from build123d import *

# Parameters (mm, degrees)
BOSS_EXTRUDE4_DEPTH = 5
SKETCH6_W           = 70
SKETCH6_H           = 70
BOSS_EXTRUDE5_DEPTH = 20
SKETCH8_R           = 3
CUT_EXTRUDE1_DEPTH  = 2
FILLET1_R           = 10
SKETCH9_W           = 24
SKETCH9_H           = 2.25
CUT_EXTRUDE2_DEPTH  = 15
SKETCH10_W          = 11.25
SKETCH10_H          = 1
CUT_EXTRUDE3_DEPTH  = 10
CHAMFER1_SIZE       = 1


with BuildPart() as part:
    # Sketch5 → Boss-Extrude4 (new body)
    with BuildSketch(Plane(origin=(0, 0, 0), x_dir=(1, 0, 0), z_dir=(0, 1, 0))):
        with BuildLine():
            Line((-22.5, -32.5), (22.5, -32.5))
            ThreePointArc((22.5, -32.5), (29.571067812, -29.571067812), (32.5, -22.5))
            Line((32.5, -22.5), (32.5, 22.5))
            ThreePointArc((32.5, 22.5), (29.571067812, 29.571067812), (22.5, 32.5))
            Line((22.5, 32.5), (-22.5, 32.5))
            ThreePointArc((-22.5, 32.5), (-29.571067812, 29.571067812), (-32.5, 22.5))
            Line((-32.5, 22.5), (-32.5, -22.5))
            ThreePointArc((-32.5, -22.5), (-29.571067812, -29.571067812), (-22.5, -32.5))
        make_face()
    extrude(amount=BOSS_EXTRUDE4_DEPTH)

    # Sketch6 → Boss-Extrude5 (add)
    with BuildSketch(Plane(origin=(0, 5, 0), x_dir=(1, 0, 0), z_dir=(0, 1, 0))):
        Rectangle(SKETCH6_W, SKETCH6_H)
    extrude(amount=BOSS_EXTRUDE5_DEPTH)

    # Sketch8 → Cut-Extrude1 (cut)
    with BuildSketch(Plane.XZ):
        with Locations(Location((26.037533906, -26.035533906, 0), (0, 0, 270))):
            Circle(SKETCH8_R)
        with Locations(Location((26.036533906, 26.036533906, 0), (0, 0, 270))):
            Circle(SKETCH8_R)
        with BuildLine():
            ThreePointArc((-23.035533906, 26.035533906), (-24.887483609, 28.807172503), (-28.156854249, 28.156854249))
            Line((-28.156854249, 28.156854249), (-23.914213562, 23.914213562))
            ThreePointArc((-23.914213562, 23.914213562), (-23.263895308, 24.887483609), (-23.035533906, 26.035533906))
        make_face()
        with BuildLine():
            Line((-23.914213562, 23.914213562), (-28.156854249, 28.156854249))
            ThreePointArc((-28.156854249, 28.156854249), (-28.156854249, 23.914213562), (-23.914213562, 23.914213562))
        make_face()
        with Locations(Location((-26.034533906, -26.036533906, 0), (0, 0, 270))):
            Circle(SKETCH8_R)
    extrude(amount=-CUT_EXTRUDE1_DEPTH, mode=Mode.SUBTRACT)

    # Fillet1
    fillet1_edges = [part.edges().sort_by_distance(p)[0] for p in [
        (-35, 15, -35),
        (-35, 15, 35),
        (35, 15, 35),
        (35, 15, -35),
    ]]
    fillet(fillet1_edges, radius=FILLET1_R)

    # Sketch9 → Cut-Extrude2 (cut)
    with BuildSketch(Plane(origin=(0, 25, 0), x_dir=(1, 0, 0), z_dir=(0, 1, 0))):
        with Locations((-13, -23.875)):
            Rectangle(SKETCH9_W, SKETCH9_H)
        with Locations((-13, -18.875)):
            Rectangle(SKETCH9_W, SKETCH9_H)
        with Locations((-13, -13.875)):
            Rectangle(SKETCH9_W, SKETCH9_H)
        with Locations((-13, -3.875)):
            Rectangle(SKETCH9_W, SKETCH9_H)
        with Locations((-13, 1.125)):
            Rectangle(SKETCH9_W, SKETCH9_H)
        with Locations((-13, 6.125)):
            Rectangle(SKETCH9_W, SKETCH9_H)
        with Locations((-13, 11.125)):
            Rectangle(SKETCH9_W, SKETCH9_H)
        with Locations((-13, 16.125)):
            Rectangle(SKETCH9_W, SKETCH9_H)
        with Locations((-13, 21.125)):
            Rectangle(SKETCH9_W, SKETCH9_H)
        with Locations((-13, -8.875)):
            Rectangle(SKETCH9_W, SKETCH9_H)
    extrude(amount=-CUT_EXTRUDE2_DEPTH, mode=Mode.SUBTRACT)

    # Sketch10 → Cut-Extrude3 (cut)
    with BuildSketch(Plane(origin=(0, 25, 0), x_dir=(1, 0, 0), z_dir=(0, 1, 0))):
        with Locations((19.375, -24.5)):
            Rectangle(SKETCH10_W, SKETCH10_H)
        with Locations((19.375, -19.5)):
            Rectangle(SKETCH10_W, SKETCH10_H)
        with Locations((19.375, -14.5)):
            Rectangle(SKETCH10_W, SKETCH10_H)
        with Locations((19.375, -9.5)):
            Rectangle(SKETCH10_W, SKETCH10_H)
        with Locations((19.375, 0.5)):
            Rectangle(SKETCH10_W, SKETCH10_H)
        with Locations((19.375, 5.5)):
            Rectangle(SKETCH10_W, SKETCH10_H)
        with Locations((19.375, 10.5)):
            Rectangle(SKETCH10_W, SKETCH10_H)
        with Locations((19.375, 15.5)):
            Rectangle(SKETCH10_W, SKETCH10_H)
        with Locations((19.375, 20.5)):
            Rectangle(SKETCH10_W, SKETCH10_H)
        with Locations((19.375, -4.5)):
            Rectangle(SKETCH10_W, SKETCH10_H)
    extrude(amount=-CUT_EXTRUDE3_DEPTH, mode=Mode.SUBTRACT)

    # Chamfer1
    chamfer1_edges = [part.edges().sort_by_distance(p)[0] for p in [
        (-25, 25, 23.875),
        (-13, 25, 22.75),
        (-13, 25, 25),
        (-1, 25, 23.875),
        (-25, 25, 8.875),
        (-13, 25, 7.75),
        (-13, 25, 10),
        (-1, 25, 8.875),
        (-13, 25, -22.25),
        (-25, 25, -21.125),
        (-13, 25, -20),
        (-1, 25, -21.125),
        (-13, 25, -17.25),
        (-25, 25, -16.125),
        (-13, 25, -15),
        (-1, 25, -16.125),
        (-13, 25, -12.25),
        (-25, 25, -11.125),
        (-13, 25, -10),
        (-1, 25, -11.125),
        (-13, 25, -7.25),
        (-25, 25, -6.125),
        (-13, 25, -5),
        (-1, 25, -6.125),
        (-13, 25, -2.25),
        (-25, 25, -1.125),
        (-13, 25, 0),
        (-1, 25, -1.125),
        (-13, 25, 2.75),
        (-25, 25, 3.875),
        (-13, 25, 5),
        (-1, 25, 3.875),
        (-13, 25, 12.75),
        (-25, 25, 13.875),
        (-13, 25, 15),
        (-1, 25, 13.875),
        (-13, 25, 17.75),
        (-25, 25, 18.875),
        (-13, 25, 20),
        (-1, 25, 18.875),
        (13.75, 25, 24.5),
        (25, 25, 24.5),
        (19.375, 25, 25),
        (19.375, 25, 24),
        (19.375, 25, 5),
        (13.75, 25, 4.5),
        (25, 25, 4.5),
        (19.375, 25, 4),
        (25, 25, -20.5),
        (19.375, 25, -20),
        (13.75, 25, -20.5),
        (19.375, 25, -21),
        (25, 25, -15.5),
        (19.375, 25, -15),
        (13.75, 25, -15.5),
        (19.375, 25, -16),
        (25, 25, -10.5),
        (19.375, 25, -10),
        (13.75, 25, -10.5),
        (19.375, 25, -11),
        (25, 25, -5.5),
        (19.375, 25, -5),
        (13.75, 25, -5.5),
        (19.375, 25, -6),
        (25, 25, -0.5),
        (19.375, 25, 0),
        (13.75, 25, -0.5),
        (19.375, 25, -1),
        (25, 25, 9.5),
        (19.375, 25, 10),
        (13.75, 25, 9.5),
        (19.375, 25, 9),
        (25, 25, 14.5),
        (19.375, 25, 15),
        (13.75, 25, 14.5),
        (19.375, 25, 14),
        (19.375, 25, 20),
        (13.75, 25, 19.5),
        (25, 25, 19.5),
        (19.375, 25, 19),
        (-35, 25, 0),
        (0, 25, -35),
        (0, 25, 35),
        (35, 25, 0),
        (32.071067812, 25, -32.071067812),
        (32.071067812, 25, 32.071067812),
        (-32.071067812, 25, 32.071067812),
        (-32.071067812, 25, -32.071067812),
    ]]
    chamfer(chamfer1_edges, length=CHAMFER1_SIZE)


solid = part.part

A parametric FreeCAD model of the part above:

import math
import FreeCAD as App
import Part
import Sketcher

V = App.Vector
Q = App.Units.Quantity


def edges_at(feature, points):
    """Names of the edges that pass closest to the given points."""
    edges = feature.Shape.Edges
    near = lambda p: min(range(len(edges)), key=lambda i: edges[i].distToShape(Part.Vertex(*p))[0])
    return sorted({f"Edge{near(p) + 1}" for p in points})

doc = App.newDocument("Part")
params = doc.addObject("Spreadsheet::Sheet", "Params")
for row, (alias, value) in enumerate([
    ("sketch1_radius", "10 mm"),
    ("sketch1_width", "45 mm"),
    ("pad1_length", "5 mm"),
    ("sketch2_width", "70 mm"),
    ("pad2_length", "20 mm"),
    ("sketch3_diameter", "6 mm"),
    ("pocket1_length", "2 mm"),
    ("fillet_radius", "10 mm"),
    ("sketch4_width", "24 mm"),
    ("sketch4_height", "2.25 mm"),
    ("pocket2_length", "15 mm"),
    ("sketch5_height", "1 mm"),
    ("sketch5_width", "11.25 mm"),
    ("pocket3_length", "10 mm"),
    ("chamfer_size", "1 mm"),
], start=1):
    params.set(f"A{row}", alias)
    params.set(f"B{row}", "=" + value)
    params.setAlias(f"B{row}", alias)

body = doc.addObject("PartDesign::Body", "Body")

sketch1 = doc.addObject("Sketcher::SketchObject", "Sketch")
body.addObject(sketch1)
sketch1.AttachmentSupport = (doc.XZ_Plane, [""])
sketch1.MapMode = "FlatFace"
sketch1.addGeometry([
    Part.LineSegment(V(-22, 32, 0), V(22, 32, 0)),
    Part.ArcOfCircle(Part.Circle(V(22, 22, 0), V(0, 0, 1), 10), math.radians(0), math.radians(90)),
    Part.LineSegment(V(32, 22, 0), V(32, -22, 0)),
    Part.ArcOfCircle(Part.Circle(V(22, -22, 0), V(0, 0, 1), 10), math.radians(-90), math.radians(0)),
    Part.LineSegment(V(22, -32, 0), V(-22, -32, 0)),
    Part.ArcOfCircle(Part.Circle(V(-22, -22, 0), V(0, 0, 1), 10), math.radians(180), math.radians(270)),
    Part.LineSegment(V(-32, -22, 0), V(-32, 22, 0)),
    Part.ArcOfCircle(Part.Circle(V(-22, 22, 0), V(0, 0, 1), 10), math.radians(90), math.radians(180)),
], False)
sketch1.addConstraint([
    Sketcher.Constraint("Tangent", 0, 2, 1, 2),
    Sketcher.Constraint("Tangent", 1, 1, 2, 1),
    Sketcher.Constraint("Tangent", 2, 2, 3, 2),
    Sketcher.Constraint("Tangent", 3, 1, 4, 1),
    Sketcher.Constraint("Tangent", 4, 2, 5, 2),
    Sketcher.Constraint("Tangent", 5, 1, 6, 1),
    Sketcher.Constraint("Tangent", 6, 2, 7, 2),
    Sketcher.Constraint("Tangent", 7, 1, 0, 1),
    Sketcher.Constraint("Horizontal", 0),
    Sketcher.Constraint("Vertical", 2),
    Sketcher.Constraint("Horizontal", 4),
    Sketcher.Constraint("Vertical", 6),
    Sketcher.Constraint("Equal", 1, 3),
    Sketcher.Constraint("Equal", 3, 5),
    Sketcher.Constraint("Equal", 5, 7),
    Sketcher.Constraint("Symmetric", 1, 3, 5, 3, -1, 1),
    Sketcher.Constraint("Equal", 4, 2),
    Sketcher.Constraint("Radius", 1, Q("10 mm")),
    Sketcher.Constraint("DistanceX", 0, 1, 0, 2, Q("45 mm")),
])
sketch1.setExpression("Constraints[17]", "Params.sketch1_radius")
sketch1.setExpression("Constraints[18]", "Params.sketch1_width")
pad1 = doc.addObject("PartDesign::Pad", "Pad")
body.addObject(pad1)
pad1.Profile = sketch1
pad1.setExpression("Length", "Params.pad1_length")
pad1.Reversed = True

sketch2 = doc.addObject("Sketcher::SketchObject", "Sketch001")
body.addObject(sketch2)
sketch2.AttachmentSupport = (doc.XZ_Plane, [""])
sketch2.MapMode = "FlatFace"
sketch2.AttachmentOffset = App.Placement(V(0, 0, -5), App.Rotation())
sketch2.addGeometry([
    Part.LineSegment(V(-35, -35, 0), V(-35, 35, 0)),
    Part.LineSegment(V(-35, 35, 0), V(35, 35, 0)),
    Part.LineSegment(V(35, 35, 0), V(35, -35, 0)),
    Part.LineSegment(V(35, -35, 0), V(-35, -35, 0)),
], False)
sketch2.addConstraint([
    Sketcher.Constraint("Coincident", 0, 2, 1, 1),
    Sketcher.Constraint("Coincident", 1, 2, 2, 1),
    Sketcher.Constraint("Coincident", 2, 2, 3, 1),
    Sketcher.Constraint("Coincident", 3, 2, 0, 1),
    Sketcher.Constraint("Vertical", 0),
    Sketcher.Constraint("Horizontal", 1),
    Sketcher.Constraint("Vertical", 2),
    Sketcher.Constraint("Horizontal", 3),
    Sketcher.Constraint("Symmetric", 0, 2, 2, 2, -1, 1),
    Sketcher.Constraint("Equal", 3, 0),
    Sketcher.Constraint("DistanceX", 1, 1, 1, 2, Q("70 mm")),
])
sketch2.setExpression("Constraints[10]", "Params.sketch2_width")
pad2 = doc.addObject("PartDesign::Pad", "Pad001")
body.addObject(pad2)
pad2.Profile = sketch2
pad2.setExpression("Length", "Params.pad2_length")
pad2.Reversed = True

sketch3 = doc.addObject("Sketcher::SketchObject", "Sketch002")
body.addObject(sketch3)
sketch3.AttachmentSupport = (doc.XZ_Plane, [""])
sketch3.MapMode = "FlatFace"
sketch3.addGeometry([
    Part.Circle(V(26, -26, 0), V(0, 0, 1), 3),
    Part.Circle(V(26, 26, 0), V(0, 0, 1), 3),
    Part.ArcOfCircle(Part.Circle(V(-26, 26, 0), V(0, 0, 1), 3), math.radians(0), math.radians(135)),
    Part.ArcOfCircle(Part.Circle(V(-26, 26, 0), V(0, 0, 1), 3), math.radians(135), math.radians(315)),
    Part.ArcOfCircle(Part.Circle(V(-26, 26, 0), V(0, 0, 1), 3), math.radians(-45), math.radians(0)),
    Part.Circle(V(-26, -26, 0), V(0, 0, 1), 3),
], False)
sketch3.addConstraint([
    Sketcher.Constraint("Tangent", 2, 2, 3, 1),
    Sketcher.Constraint("Tangent", 3, 2, 4, 1),
    Sketcher.Constraint("Tangent", 4, 2, 2, 1),
    Sketcher.Constraint("Equal", 0, 1),
    Sketcher.Constraint("Equal", 1, 2),
    Sketcher.Constraint("Equal", 4, 5),
    Sketcher.Constraint("Horizontal", 3, 3, 4, 2),
    Sketcher.Constraint("Diameter", 0, Q("6 mm")),
    Sketcher.Constraint("DistanceX", 1, 3, 0, 3, Q("0.001 mm")),
    Sketcher.Constraint("DistanceY", 2, 3, 1, 3, Q("0.001 mm")),
    Sketcher.Constraint("DistanceX", 3, 3, 5, 3, Q("0.001 mm")),
    Sketcher.Constraint("DistanceY", 5, 3, 0, 3, Q("0.001 mm")),
    Sketcher.Constraint("DistanceX", 2, 2, 2, 3, Q("2.12132 mm")),
    Sketcher.Constraint("DistanceX", 2, 2, 1, 3, Q("54.193388 mm")),
    Sketcher.Constraint("DistanceY", 5, 3, 2, 2, Q("54.193388 mm")),
    Sketcher.Constraint("DistanceX", 3, 3, 3, 2, Q("2.12132 mm")),
    Sketcher.Constraint("DistanceX", -1, 1, 0, 3, Q("26.037534 mm")),
    Sketcher.Constraint("DistanceY", 0, 3, -1, 1, Q("26.035534 mm")),
])
sketch3.setExpression("Constraints[7]", "Params.sketch3_diameter")
pocket1 = doc.addObject("PartDesign::Pocket", "Pocket")
body.addObject(pocket1)
pocket1.Profile = sketch3
pocket1.setExpression("Length", "Params.pocket1_length")
doc.recompute()

fillet = doc.addObject("PartDesign::Fillet", "Fillet")
body.addObject(fillet)
fillet.Base = (pocket1, edges_at(pocket1, [
    (-35, 15, -35),
    (-35, 15, 35),
    (35, 15, 35),
    (35, 15, -35),
]))
fillet.setExpression("Radius", "Params.fillet_radius")

sketch4 = doc.addObject("Sketcher::SketchObject", "Sketch003")
body.addObject(sketch4)
sketch4.AttachmentSupport = (doc.XZ_Plane, [""])
sketch4.MapMode = "FlatFace"
sketch4.AttachmentOffset = App.Placement(V(0, 0, -25), App.Rotation())
sketch4.addGeometry([
    Part.LineSegment(V(-25, 22.8, 0), V(-25, 25, 0)),
    Part.LineSegment(V(-25, 25, 0), V(-1, 25, 0)),
    Part.LineSegment(V(-1, 25, 0), V(-1, 22.8, 0)),
    Part.LineSegment(V(-1, 22.8, 0), V(-25, 22.8, 0)),
    Part.LineSegment(V(-25, 17.8, 0), V(-25, 20, 0)),
    Part.LineSegment(V(-25, 20, 0), V(-1, 20, 0)),
    Part.LineSegment(V(-1, 20, 0), V(-1, 17.8, 0)),
    Part.LineSegment(V(-1, 17.8, 0), V(-25, 17.8, 0)),
    Part.LineSegment(V(-25, 12.8, 0), V(-25, 15, 0)),
    Part.LineSegment(V(-25, 15, 0), V(-1, 15, 0)),
    Part.LineSegment(V(-1, 15, 0), V(-1, 12.8, 0)),
    Part.LineSegment(V(-1, 12.8, 0), V(-25, 12.8, 0)),
    Part.LineSegment(V(-25, 2.8, 0), V(-25, 5, 0)),
    Part.LineSegment(V(-25, 5, 0), V(-1, 5, 0)),
    Part.LineSegment(V(-1, 5, 0), V(-1, 2.8, 0)),
    Part.LineSegment(V(-1, 2.8, 0), V(-25, 2.8, 0)),
    Part.LineSegment(V(-25, -2.2, 0), V(-25, 0, 0)),
    Part.LineSegment(V(-25, 0, 0), V(-1, 0, 0)),
    Part.LineSegment(V(-1, 0, 0), V(-1, -2.2, 0)),
    Part.LineSegment(V(-1, -2.2, 0), V(-25, -2.2, 0)),
    Part.LineSegment(V(-25, -7.2, 0), V(-25, -5, 0)),
    Part.LineSegment(V(-25, -5, 0), V(-1, -5, 0)),
    Part.LineSegment(V(-1, -5, 0), V(-1, -7.2, 0)),
    Part.LineSegment(V(-1, -7.2, 0), V(-25, -7.2, 0)),
    Part.LineSegment(V(-25, -12.2, 0), V(-25, -10, 0)),
    Part.LineSegment(V(-25, -10, 0), V(-1, -10, 0)),
    Part.LineSegment(V(-1, -10, 0), V(-1, -12.2, 0)),
    Part.LineSegment(V(-1, -12.2, 0), V(-25, -12.2, 0)),
    Part.LineSegment(V(-25, -17.2, 0), V(-25, -15, 0)),
    Part.LineSegment(V(-25, -15, 0), V(-1, -15, 0)),
    Part.LineSegment(V(-1, -15, 0), V(-1, -17.2, 0)),
    Part.LineSegment(V(-1, -17.2, 0), V(-25, -17.2, 0)),
    Part.LineSegment(V(-25, -22.2, 0), V(-25, -20, 0)),
    Part.LineSegment(V(-25, -20, 0), V(-1, -20, 0)),
    Part.LineSegment(V(-1, -20, 0), V(-1, -22.2, 0)),
    Part.LineSegment(V(-1, -22.2, 0), V(-25, -22.2, 0)),
    Part.LineSegment(V(-25, 7.8, 0), V(-25, 10, 0)),
    Part.LineSegment(V(-25, 10, 0), V(-1, 10, 0)),
    Part.LineSegment(V(-1, 10, 0), V(-1, 7.8, 0)),
    Part.LineSegment(V(-1, 7.8, 0), V(-25, 7.8, 0)),
], False)
sketch4.addConstraint([
    Sketcher.Constraint("Coincident", 0, 2, 1, 1),
    Sketcher.Constraint("Coincident", 1, 2, 2, 1),
    Sketcher.Constraint("Coincident", 2, 2, 3, 1),
    Sketcher.Constraint("Coincident", 3, 2, 0, 1),
    Sketcher.Constraint("Coincident", 4, 2, 5, 1),
    Sketcher.Constraint("Coincident", 5, 2, 6, 1),
    Sketcher.Constraint("Coincident", 6, 2, 7, 1),
    Sketcher.Constraint("Coincident", 7, 2, 4, 1),
    Sketcher.Constraint("Coincident", 8, 2, 9, 1),
    Sketcher.Constraint("Coincident", 9, 2, 10, 1),
    Sketcher.Constraint("Coincident", 10, 2, 11, 1),
    Sketcher.Constraint("Coincident", 11, 2, 8, 1),
    Sketcher.Constraint("Coincident", 12, 2, 13, 1),
    Sketcher.Constraint("Coincident", 13, 2, 14, 1),
    Sketcher.Constraint("Coincident", 14, 2, 15, 1),
    Sketcher.Constraint("Coincident", 15, 2, 12, 1),
    Sketcher.Constraint("Coincident", 16, 2, 17, 1),
    Sketcher.Constraint("Coincident", 17, 2, 18, 1),
    Sketcher.Constraint("Coincident", 18, 2, 19, 1),
    Sketcher.Constraint("Coincident", 19, 2, 16, 1),
    Sketcher.Constraint("Coincident", 20, 2, 21, 1),
    Sketcher.Constraint("Coincident", 21, 2, 22, 1),
    Sketcher.Constraint("Coincident", 22, 2, 23, 1),
    Sketcher.Constraint("Coincident", 23, 2, 20, 1),
    Sketcher.Constraint("Coincident", 24, 2, 25, 1),
    Sketcher.Constraint("Coincident", 25, 2, 26, 1),
    Sketcher.Constraint("Coincident", 26, 2, 27, 1),
    Sketcher.Constraint("Coincident", 27, 2, 24, 1),
    Sketcher.Constraint("Coincident", 28, 2, 29, 1),
    Sketcher.Constraint("Coincident", 29, 2, 30, 1),
    Sketcher.Constraint("Coincident", 30, 2, 31, 1),
    Sketcher.Constraint("Coincident", 31, 2, 28, 1),
    Sketcher.Constraint("Coincident", 32, 2, 33, 1),
    Sketcher.Constraint("Coincident", 33, 2, 34, 1),
    Sketcher.Constraint("Coincident", 34, 2, 35, 1),
    Sketcher.Constraint("Coincident", 35, 2, 32, 1),
    Sketcher.Constraint("Coincident", 36, 2, 37, 1),
    Sketcher.Constraint("Coincident", 37, 2, 38, 1),
    Sketcher.Constraint("Coincident", 38, 2, 39, 1),
    Sketcher.Constraint("Coincident", 39, 2, 36, 1),
    Sketcher.Constraint("Vertical", 0),
    Sketcher.Constraint("Horizontal", 1),
    Sketcher.Constraint("Vertical", 2),
    Sketcher.Constraint("Horizontal", 3),
    Sketcher.Constraint("Vertical", 4),
    Sketcher.Constraint("Horizontal", 5),
    Sketcher.Constraint("Vertical", 6),
    Sketcher.Constraint("Horizontal", 7),
    Sketcher.Constraint("Vertical", 8),
    Sketcher.Constraint("Horizontal", 9),
    Sketcher.Constraint("Vertical", 10),
    Sketcher.Constraint("Horizontal", 11),
    Sketcher.Constraint("Vertical", 12),
    Sketcher.Constraint("Horizontal", 13),
    Sketcher.Constraint("Vertical", 14),
    Sketcher.Constraint("Horizontal", 15),
    Sketcher.Constraint("Vertical", 16),
    Sketcher.Constraint("Horizontal", 17),
    Sketcher.Constraint("Vertical", 18),
    Sketcher.Constraint("Horizontal", 19),
    Sketcher.Constraint("Vertical", 20),
    Sketcher.Constraint("Horizontal", 21),
    Sketcher.Constraint("Vertical", 22),
    Sketcher.Constraint("Horizontal", 23),
    Sketcher.Constraint("Vertical", 24),
    Sketcher.Constraint("Horizontal", 25),
    Sketcher.Constraint("Vertical", 26),
    Sketcher.Constraint("Horizontal", 27),
    Sketcher.Constraint("Vertical", 28),
    Sketcher.Constraint("Horizontal", 29),
    Sketcher.Constraint("Vertical", 30),
    Sketcher.Constraint("Horizontal", 31),
    Sketcher.Constraint("Vertical", 32),
    Sketcher.Constraint("Horizontal", 33),
    Sketcher.Constraint("Vertical", 34),
    Sketcher.Constraint("Horizontal", 35),
    Sketcher.Constraint("Vertical", 36),
    Sketcher.Constraint("Horizontal", 37),
    Sketcher.Constraint("Vertical", 38),
    Sketcher.Constraint("Horizontal", 39),
    Sketcher.Constraint("Symmetric", 12, 2, 20, 2, -1),
    Sketcher.Constraint("Symmetric", 8, 2, 28, 2, -1),
    Sketcher.Constraint("Symmetric", 4, 2, 32, 2, -1),
    Sketcher.Constraint("Symmetric", 24, 2, 36, 2, -1),
    Sketcher.Constraint("PointOnObject", 16, 2, -1),
    Sketcher.Constraint("Vertical", 3, 2, 4, 2),
    Sketcher.Constraint("Vertical", 2, 2, 5, 2),
    Sketcher.Constraint("Vertical", 7, 2, 8, 2),
    Sketcher.Constraint("Vertical", 6, 2, 9, 2),
    Sketcher.Constraint("Vertical", 11, 2, 12, 2),
    Sketcher.Constraint("Vertical", 10, 2, 13, 2),
    Sketcher.Constraint("Vertical", 15, 2, 16, 2),
    Sketcher.Constraint("Vertical", 14, 2, 17, 2),
    Sketcher.Constraint("Vertical", 18, 2, 21, 2),
    Sketcher.Constraint("Vertical", 23, 2, 24, 2),
    Sketcher.Constraint("Vertical", 22, 2, 25, 2),
    Sketcher.Constraint("Vertical", 26, 2, 29, 2),
    Sketcher.Constraint("Vertical", 30, 2, 33, 2),
    Sketcher.Constraint("Vertical", 34, 2, 37, 2),
    Sketcher.Constraint("Equal", 2, 4),
    Sketcher.Constraint("Equal", 6, 8),
    Sketcher.Constraint("Equal", 10, 12),
    Sketcher.Constraint("Equal", 14, 16),
    Sketcher.Constraint("Equal", 18, 20),
    Sketcher.Constraint("Equal", 22, 24),
    Sketcher.Constraint("Equal", 26, 28),
    Sketcher.Constraint("Equal", 30, 32),
    Sketcher.Constraint("Equal", 34, 36),
    Sketcher.Constraint("DistanceX", 1, 1, 1, 2, Q("24 mm")),
    Sketcher.Constraint("DistanceX", 0, 2, -1, 1, Q("25 mm")),
    Sketcher.Constraint("DistanceY", -1, 1, 0, 2, Q("25 mm")),
    Sketcher.Constraint("DistanceY", -1, 1, 4, 2, Q("20 mm")),
    Sketcher.Constraint("DistanceY", -1, 1, 8, 2, Q("15 mm")),
    Sketcher.Constraint("DistanceY", -1, 1, 12, 2, Q("5 mm")),
    Sketcher.Constraint("DistanceY", 24, 2, -1, 1, Q("10 mm")),
    Sketcher.Constraint("DistanceY", 0, 1, 0, 2, Q("2.25 mm")),
])
sketch4.setExpression("Constraints[108]", "Params.sketch4_width")
sketch4.setExpression("Constraints[115]", "Params.sketch4_height")
pocket2 = doc.addObject("PartDesign::Pocket", "Pocket001")
body.addObject(pocket2)
pocket2.Profile = sketch4
pocket2.setExpression("Length", "Params.pocket2_length")
pocket2.Reversed = True

sketch5 = doc.addObject("Sketcher::SketchObject", "Sketch004")
body.addObject(sketch5)
sketch5.AttachmentSupport = (doc.XZ_Plane, [""])
sketch5.MapMode = "FlatFace"
sketch5.AttachmentOffset = App.Placement(V(0, 0, -25), App.Rotation())
sketch5.addGeometry([
    Part.LineSegment(V(13.8, 24, 0), V(13.8, 25, 0)),
    Part.LineSegment(V(13.8, 25, 0), V(25, 25, 0)),
    Part.LineSegment(V(25, 25, 0), V(25, 24, 0)),
    Part.LineSegment(V(25, 24, 0), V(13.8, 24, 0)),
    Part.LineSegment(V(13.8, 19, 0), V(13.8, 20, 0)),
    Part.LineSegment(V(13.8, 20, 0), V(25, 20, 0)),
    Part.LineSegment(V(25, 20, 0), V(25, 19, 0)),
    Part.LineSegment(V(25, 19, 0), V(13.8, 19, 0)),
    Part.LineSegment(V(13.8, 14, 0), V(13.8, 15, 0)),
    Part.LineSegment(V(13.8, 15, 0), V(25, 15, 0)),
    Part.LineSegment(V(25, 15, 0), V(25, 14, 0)),
    Part.LineSegment(V(25, 14, 0), V(13.8, 14, 0)),
    Part.LineSegment(V(13.8, 9, 0), V(13.8, 10, 0)),
    Part.LineSegment(V(13.8, 10, 0), V(25, 10, 0)),
    Part.LineSegment(V(25, 10, 0), V(25, 9, 0)),
    Part.LineSegment(V(25, 9, 0), V(13.8, 9, 0)),
    Part.LineSegment(V(13.8, -1, 0), V(13.8, 0, 0)),
    Part.LineSegment(V(13.8, 0, 0), V(25, 0, 0)),
    Part.LineSegment(V(25, 0, 0), V(25, -1, 0)),
    Part.LineSegment(V(25, -1, 0), V(13.8, -1, 0)),
    Part.LineSegment(V(13.8, -6, 0), V(13.8, -5, 0)),
    Part.LineSegment(V(13.8, -5, 0), V(25, -5, 0)),
    Part.LineSegment(V(25, -5, 0), V(25, -6, 0)),
    Part.LineSegment(V(25, -6, 0), V(13.8, -6, 0)),
    Part.LineSegment(V(13.8, -11, 0), V(13.8, -10, 0)),
    Part.LineSegment(V(13.8, -10, 0), V(25, -10, 0)),
    Part.LineSegment(V(25, -10, 0), V(25, -11, 0)),
    Part.LineSegment(V(25, -11, 0), V(13.8, -11, 0)),
    Part.LineSegment(V(13.8, -16, 0), V(13.8, -15, 0)),
    Part.LineSegment(V(13.8, -15, 0), V(25, -15, 0)),
    Part.LineSegment(V(25, -15, 0), V(25, -16, 0)),
    Part.LineSegment(V(25, -16, 0), V(13.8, -16, 0)),
    Part.LineSegment(V(13.8, -21, 0), V(13.8, -20, 0)),
    Part.LineSegment(V(13.8, -20, 0), V(25, -20, 0)),
    Part.LineSegment(V(25, -20, 0), V(25, -21, 0)),
    Part.LineSegment(V(25, -21, 0), V(13.8, -21, 0)),
    Part.LineSegment(V(13.8, 4, 0), V(13.8, 5, 0)),
    Part.LineSegment(V(13.8, 5, 0), V(25, 5, 0)),
    Part.LineSegment(V(25, 5, 0), V(25, 4, 0)),
    Part.LineSegment(V(25, 4, 0), V(13.8, 4, 0)),
], False)
sketch5.addConstraint([
    Sketcher.Constraint("Coincident", 0, 2, 1, 1),
    Sketcher.Constraint("Coincident", 1, 2, 2, 1),
    Sketcher.Constraint("Coincident", 2, 2, 3, 1),
    Sketcher.Constraint("Coincident", 3, 2, 0, 1),
    Sketcher.Constraint("Coincident", 4, 2, 5, 1),
    Sketcher.Constraint("Coincident", 5, 2, 6, 1),
    Sketcher.Constraint("Coincident", 6, 2, 7, 1),
    Sketcher.Constraint("Coincident", 7, 2, 4, 1),
    Sketcher.Constraint("Coincident", 8, 2, 9, 1),
    Sketcher.Constraint("Coincident", 9, 2, 10, 1),
    Sketcher.Constraint("Coincident", 10, 2, 11, 1),
    Sketcher.Constraint("Coincident", 11, 2, 8, 1),
    Sketcher.Constraint("Coincident", 12, 2, 13, 1),
    Sketcher.Constraint("Coincident", 13, 2, 14, 1),
    Sketcher.Constraint("Coincident", 14, 2, 15, 1),
    Sketcher.Constraint("Coincident", 15, 2, 12, 1),
    Sketcher.Constraint("Coincident", 16, 2, 17, 1),
    Sketcher.Constraint("Coincident", 17, 2, 18, 1),
    Sketcher.Constraint("Coincident", 18, 2, 19, 1),
    Sketcher.Constraint("Coincident", 19, 2, 16, 1),
    Sketcher.Constraint("Coincident", 20, 2, 21, 1),
    Sketcher.Constraint("Coincident", 21, 2, 22, 1),
    Sketcher.Constraint("Coincident", 22, 2, 23, 1),
    Sketcher.Constraint("Coincident", 23, 2, 20, 1),
    Sketcher.Constraint("Coincident", 24, 2, 25, 1),
    Sketcher.Constraint("Coincident", 25, 2, 26, 1),
    Sketcher.Constraint("Coincident", 26, 2, 27, 1),
    Sketcher.Constraint("Coincident", 27, 2, 24, 1),
    Sketcher.Constraint("Coincident", 28, 2, 29, 1),
    Sketcher.Constraint("Coincident", 29, 2, 30, 1),
    Sketcher.Constraint("Coincident", 30, 2, 31, 1),
    Sketcher.Constraint("Coincident", 31, 2, 28, 1),
    Sketcher.Constraint("Coincident", 32, 2, 33, 1),
    Sketcher.Constraint("Coincident", 33, 2, 34, 1),
    Sketcher.Constraint("Coincident", 34, 2, 35, 1),
    Sketcher.Constraint("Coincident", 35, 2, 32, 1),
    Sketcher.Constraint("Coincident", 36, 2, 37, 1),
    Sketcher.Constraint("Coincident", 37, 2, 38, 1),
    Sketcher.Constraint("Coincident", 38, 2, 39, 1),
    Sketcher.Constraint("Coincident", 39, 2, 36, 1),
    Sketcher.Constraint("Vertical", 0),
    Sketcher.Constraint("Horizontal", 1),
    Sketcher.Constraint("Vertical", 2),
    Sketcher.Constraint("Horizontal", 3),
    Sketcher.Constraint("Vertical", 4),
    Sketcher.Constraint("Horizontal", 5),
    Sketcher.Constraint("Vertical", 6),
    Sketcher.Constraint("Horizontal", 7),
    Sketcher.Constraint("Vertical", 8),
    Sketcher.Constraint("Horizontal", 9),
    Sketcher.Constraint("Vertical", 10),
    Sketcher.Constraint("Horizontal", 11),
    Sketcher.Constraint("Vertical", 12),
    Sketcher.Constraint("Horizontal", 13),
    Sketcher.Constraint("Vertical", 14),
    Sketcher.Constraint("Horizontal", 15),
    Sketcher.Constraint("Vertical", 16),
    Sketcher.Constraint("Horizontal", 17),
    Sketcher.Constraint("Vertical", 18),
    Sketcher.Constraint("Horizontal", 19),
    Sketcher.Constraint("Vertical", 20),
    Sketcher.Constraint("Horizontal", 21),
    Sketcher.Constraint("Vertical", 22),
    Sketcher.Constraint("Horizontal", 23),
    Sketcher.Constraint("Vertical", 24),
    Sketcher.Constraint("Horizontal", 25),
    Sketcher.Constraint("Vertical", 26),
    Sketcher.Constraint("Horizontal", 27),
    Sketcher.Constraint("Vertical", 28),
    Sketcher.Constraint("Horizontal", 29),
    Sketcher.Constraint("Vertical", 30),
    Sketcher.Constraint("Horizontal", 31),
    Sketcher.Constraint("Vertical", 32),
    Sketcher.Constraint("Horizontal", 33),
    Sketcher.Constraint("Vertical", 34),
    Sketcher.Constraint("Horizontal", 35),
    Sketcher.Constraint("Vertical", 36),
    Sketcher.Constraint("Horizontal", 37),
    Sketcher.Constraint("Vertical", 38),
    Sketcher.Constraint("Horizontal", 39),
    Sketcher.Constraint("Symmetric", 12, 2, 24, 2, -1),
    Sketcher.Constraint("Symmetric", 8, 2, 28, 2, -1),
    Sketcher.Constraint("Symmetric", 4, 2, 32, 2, -1),
    Sketcher.Constraint("Symmetric", 20, 2, 36, 2, -1),
    Sketcher.Constraint("PointOnObject", 16, 2, -1),
    Sketcher.Constraint("Vertical", 3, 2, 4, 2),
    Sketcher.Constraint("Vertical", 2, 2, 5, 2),
    Sketcher.Constraint("Vertical", 7, 2, 8, 2),
    Sketcher.Constraint("Vertical", 6, 2, 9, 2),
    Sketcher.Constraint("Vertical", 11, 2, 12, 2),
    Sketcher.Constraint("Vertical", 10, 2, 13, 2),
    Sketcher.Constraint("Vertical", 15, 2, 16, 2),
    Sketcher.Constraint("Vertical", 14, 2, 17, 2),
    Sketcher.Constraint("Vertical", 19, 2, 20, 2),
    Sketcher.Constraint("Vertical", 18, 2, 21, 2),
    Sketcher.Constraint("Vertical", 22, 2, 25, 2),
    Sketcher.Constraint("Vertical", 26, 2, 29, 2),
    Sketcher.Constraint("Vertical", 30, 2, 33, 2),
    Sketcher.Constraint("Vertical", 34, 2, 37, 2),
    Sketcher.Constraint("Equal", 2, 4),
    Sketcher.Constraint("Equal", 6, 8),
    Sketcher.Constraint("Equal", 10, 12),
    Sketcher.Constraint("Equal", 14, 16),
    Sketcher.Constraint("Equal", 18, 20),
    Sketcher.Constraint("Equal", 22, 24),
    Sketcher.Constraint("Equal", 26, 28),
    Sketcher.Constraint("Equal", 30, 32),
    Sketcher.Constraint("Equal", 34, 36),
    Sketcher.Constraint("DistanceY", 0, 1, 0, 2, Q("1 mm")),
    Sketcher.Constraint("DistanceY", -1, 1, 0, 2, Q("25 mm")),
    Sketcher.Constraint("DistanceX", -1, 1, 1, 2, Q("25 mm")),
    Sketcher.Constraint("DistanceY", -1, 1, 4, 2, Q("20 mm")),
    Sketcher.Constraint("DistanceY", -1, 1, 8, 2, Q("15 mm")),
    Sketcher.Constraint("DistanceY", -1, 1, 12, 2, Q("10 mm")),
    Sketcher.Constraint("DistanceY", 20, 2, -1, 1, Q("5 mm")),
    Sketcher.Constraint("DistanceX", 1, 1, 1, 2, Q("11.25 mm")),
])
sketch5.setExpression("Constraints[108]", "Params.sketch5_height")
sketch5.setExpression("Constraints[115]", "Params.sketch5_width")
pocket3 = doc.addObject("PartDesign::Pocket", "Pocket002")
body.addObject(pocket3)
pocket3.Profile = sketch5
pocket3.setExpression("Length", "Params.pocket3_length")
pocket3.Reversed = True
doc.recompute()

chamfer = doc.addObject("PartDesign::Chamfer", "Chamfer")
body.addObject(chamfer)
chamfer.Base = (pocket3, edges_at(pocket3, [
    (-25, 25, 23.875),
    (-13, 25, 22.75),
    (-13, 25, 25),
    (-1, 25, 23.875),
    (-25, 25, 8.875),
    (-13, 25, 7.75),
    (-13, 25, 10),
    (-1, 25, 8.875),
    (-13, 25, -22.25),
    (-25, 25, -21.125),
    (-13, 25, -20),
    (-1, 25, -21.125),
    (-13, 25, -17.25),
    (-25, 25, -16.125),
    (-13, 25, -15),
    (-1, 25, -16.125),
    (-13, 25, -12.25),
    (-25, 25, -11.125),
    (-13, 25, -10),
    (-1, 25, -11.125),
    (-13, 25, -7.25),
    (-25, 25, -6.125),
    (-13, 25, -5),
    (-1, 25, -6.125),
    (-13, 25, -2.25),
    (-25, 25, -1.125),
    (-13, 25, 0),
    (-1, 25, -1.125),
    (-13, 25, 2.75),
    (-25, 25, 3.875),
    (-13, 25, 5),
    (-1, 25, 3.875),
    (-13, 25, 12.75),
    (-25, 25, 13.875),
    (-13, 25, 15),
    (-1, 25, 13.875),
    (-13, 25, 17.75),
    (-25, 25, 18.875),
    (-13, 25, 20),
    (-1, 25, 18.875),
    (13.75, 25, 24.5),
    (25, 25, 24.5),
    (19.375, 25, 25),
    (19.375, 25, 24),
    (19.375, 25, 5),
    (13.75, 25, 4.5),
    (25, 25, 4.5),
    (19.375, 25, 4),
    (25, 25, -20.5),
    (19.375, 25, -20),
    (13.75, 25, -20.5),
    (19.375, 25, -21),
    (25, 25, -15.5),
    (19.375, 25, -15),
    (13.75, 25, -15.5),
    (19.375, 25, -16),
    (25, 25, -10.5),
    (19.375, 25, -10),
    (13.75, 25, -10.5),
    (19.375, 25, -11),
    (25, 25, -5.5),
    (19.375, 25, -5),
    (13.75, 25, -5.5),
    (19.375, 25, -6),
    (25, 25, -0.5),
    (19.375, 25, 0),
    (13.75, 25, -0.5),
    (19.375, 25, -1),
    (25, 25, 9.5),
    (19.375, 25, 10),
    (13.75, 25, 9.5),
    (19.375, 25, 9),
    (25, 25, 14.5),
    (19.375, 25, 15),
    (13.75, 25, 14.5),
    (19.375, 25, 14),
    (19.375, 25, 20),
    (13.75, 25, 19.5),
    (25, 25, 19.5),
    (19.375, 25, 19),
    (-35, 25, 0),
    (0, 25, -35),
    (0, 25, 35),
    (35, 25, 0),
    (32.071, 25, -32.071),
    (32.071, 25, 32.071),
    (-32.071, 25, 32.071),
    (-32.071, 25, -32.071),
]))
chamfer.setExpression("Size", "Params.chamfer_size")

doc.recompute()
